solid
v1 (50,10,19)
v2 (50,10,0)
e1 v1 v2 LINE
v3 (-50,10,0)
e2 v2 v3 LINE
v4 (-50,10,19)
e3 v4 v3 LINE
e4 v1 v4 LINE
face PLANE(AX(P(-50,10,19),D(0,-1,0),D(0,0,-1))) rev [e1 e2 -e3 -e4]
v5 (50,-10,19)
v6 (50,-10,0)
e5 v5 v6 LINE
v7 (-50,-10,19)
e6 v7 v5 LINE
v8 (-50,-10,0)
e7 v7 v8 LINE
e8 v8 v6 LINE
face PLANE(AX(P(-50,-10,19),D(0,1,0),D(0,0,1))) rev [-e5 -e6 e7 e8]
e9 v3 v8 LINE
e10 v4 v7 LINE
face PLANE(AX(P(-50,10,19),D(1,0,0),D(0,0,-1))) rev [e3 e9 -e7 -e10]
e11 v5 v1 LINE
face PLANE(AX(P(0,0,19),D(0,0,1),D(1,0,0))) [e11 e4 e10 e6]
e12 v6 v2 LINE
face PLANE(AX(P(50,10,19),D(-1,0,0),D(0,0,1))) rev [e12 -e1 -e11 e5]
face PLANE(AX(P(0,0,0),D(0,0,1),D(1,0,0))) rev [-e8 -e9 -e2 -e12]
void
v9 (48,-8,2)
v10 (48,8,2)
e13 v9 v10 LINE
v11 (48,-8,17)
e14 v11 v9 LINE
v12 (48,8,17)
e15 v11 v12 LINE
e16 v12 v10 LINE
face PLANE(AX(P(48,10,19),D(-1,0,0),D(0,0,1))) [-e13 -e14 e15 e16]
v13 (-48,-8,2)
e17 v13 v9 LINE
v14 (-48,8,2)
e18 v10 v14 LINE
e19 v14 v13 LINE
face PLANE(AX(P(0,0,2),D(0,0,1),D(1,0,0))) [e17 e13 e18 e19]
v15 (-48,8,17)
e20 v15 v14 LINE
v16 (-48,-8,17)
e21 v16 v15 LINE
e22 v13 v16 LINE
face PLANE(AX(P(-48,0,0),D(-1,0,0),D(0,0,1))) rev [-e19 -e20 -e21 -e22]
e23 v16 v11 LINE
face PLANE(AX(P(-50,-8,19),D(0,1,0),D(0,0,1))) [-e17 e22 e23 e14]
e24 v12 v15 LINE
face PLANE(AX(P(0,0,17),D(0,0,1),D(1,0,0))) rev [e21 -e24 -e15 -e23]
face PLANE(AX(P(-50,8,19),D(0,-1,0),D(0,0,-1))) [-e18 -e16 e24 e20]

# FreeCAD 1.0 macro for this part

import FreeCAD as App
import Part
import Sketcher


def faces_at(feature, points):
    """Names of the faces that lie closest to the given points."""
    faces = feature.Shape.Faces
    near = lambda p: min(range(len(faces)), key=lambda i: faces[i].distToShape(Part.Vertex(*p))[0])
    return sorted({f"Face{near(p) + 1}" for p in points})


def add_polygon(sketch, points):
    """Adds a closed chain of lines whose ends are joined by coincident constraints."""
    first, n = sketch.GeometryCount, len(points)
    for a, b in zip(points, points[1:] + points[:1]):
        sketch.addGeometry(Part.LineSegment(App.Vector(*a, 0), App.Vector(*b, 0)), False)
    for i in range(n):
        sketch.addConstraint(Sketcher.Constraint("Coincident", first + i, 2, first + (i + 1) % n, 1))

doc = App.newDocument("Part")
params = doc.addObject("Spreadsheet::Sheet", "Params")
for row, (alias, value) in enumerate([
    ("sketch1_width", "100 mm"),
    ("sketch1_height", "20 mm"),
    ("pad1_length", "19 mm"),
    ("sketch2_width", "100 mm"),
    ("sketch2_height", "20 mm"),
    ("pad2_length", "19 mm"),
    ("thickness_wall", "2 mm"),
    ("sketch3_width", "16 mm"),
    ("sketch3_height", "15 mm"),
    ("pad3_length", "2 mm"),
], start=1):
    params.set(f"A{row}", alias)
    params.set(f"B{row}", "=" + value)
    params.setAlias(f"B{row}", alias)

body = doc.addObject("PartDesign::Body", "Body")

# Sketch on XY plane
sketch1 = doc.addObject("Sketcher::SketchObject", "Sketch")
body.addObject(sketch1)
sketch1.AttachmentSupport = (doc.XY_Plane, [""])
sketch1.MapMode = "FlatFace"
add_polygon(sketch1, [(-50, 10), (-50, -10), (50, -10), (50, 10)])  # lines 0-3
sketch1.addConstraint(Sketcher.Constraint("Vertical", 0))
sketch1.addConstraint(Sketcher.Constraint("Horizontal", 1))
sketch1.addConstraint(Sketcher.Constraint("Vertical", 2))
sketch1.addConstraint(Sketcher.Constraint("Horizontal", 3))
sketch1.addConstraint(Sketcher.Constraint("Symmetric", 0, 2, 2, 2, -1, 1))
sketch1.addConstraint(Sketcher.Constraint("DistanceX", 1, 1, 1, 2, 100.0))
sketch1.addConstraint(Sketcher.Constraint("DistanceY", 0, 2, 0, 1, 20.0))
sketch1.setExpression("Constraints[9]", "Params.sketch1_width")
sketch1.setExpression("Constraints[10]", "Params.sketch1_height")
pad1 = doc.addObject("PartDesign::Pad", "Pad")
body.addObject(pad1)
pad1.Profile = sketch1
pad1.setExpression("Length", "Params.pad1_length")

# Sketch on XY plane
sketch2 = doc.addObject("Sketcher::SketchObject", "Sketch001")
body.addObject(sketch2)
sketch2.AttachmentSupport = (doc.XY_Plane, [""])
sketch2.MapMode = "FlatFace"
add_polygon(sketch2, [(-50, 10), (-50, -10), (50, -10), (50, 10)])  # lines 0-3
sketch2.addConstraint(Sketcher.Constraint("Vertical", 0))
sketch2.addConstraint(Sketcher.Constraint("Horizontal", 1))
sketch2.addConstraint(Sketcher.Constraint("Vertical", 2))
sketch2.addConstraint(Sketcher.Constraint("Horizontal", 3))
sketch2.addConstraint(Sketcher.Constraint("Symmetric", 0, 2, 2, 2, -1, 1))
sketch2.addConstraint(Sketcher.Constraint("DistanceX", 1, 1, 1, 2, 100.0))
sketch2.addConstraint(Sketcher.Constraint("DistanceY", 0, 2, 0, 1, 20.0))
sketch2.setExpression("Constraints[9]", "Params.sketch2_width")
sketch2.setExpression("Constraints[10]", "Params.sketch2_height")
pad2 = doc.addObject("PartDesign::Pad", "Pad001")
body.addObject(pad2)
pad2.Profile = sketch2
pad2.setExpression("Length", "Params.pad2_length")
doc.recompute()

thickness = doc.addObject("PartDesign::Thickness", "Thickness")
body.addObject(thickness)
thickness.Base = (pad2, faces_at(pad2, [(-50, 0, 9.5)]))
thickness.setExpression("Value", "Params.thickness_wall")
thickness.Reversed = True
thickness.Join = "Intersection"

# Sketch on YZ plane
sketch3 = doc.addObject("Sketcher::SketchObject", "Sketch002")
body.addObject(sketch3)
sketch3.AttachmentSupport = (doc.YZ_Plane, [""])
sketch3.MapMode = "FlatFace"
sketch3.AttachmentOffset = App.Placement(App.Vector(0, 0, -50), App.Rotation())
add_polygon(sketch3, [(8, 2), (-8, 2), (-8, 17), (8, 17)])  # lines 0-3
sketch3.addConstraint(Sketcher.Constraint("Horizontal", 0))
sketch3.addConstraint(Sketcher.Constraint("Vertical", 1))
sketch3.addConstraint(Sketcher.Constraint("Horizontal", 2))
sketch3.addConstraint(Sketcher.Constraint("Vertical", 3))
sketch3.addConstraint(Sketcher.Constraint("DistanceX", 0, 2, 0, 1, 16.0))
sketch3.addConstraint(Sketcher.Constraint("DistanceY", 1, 1, 1, 2, 15.0))
sketch3.addConstraint(Sketcher.Constraint("DistanceX", 0, 2, -1, 1, 8.0))
sketch3.addConstraint(Sketcher.Constraint("DistanceY", -1, 1, 0, 2, 2.0))
sketch3.setExpression("Constraints[8]", "Params.sketch3_width")
sketch3.setExpression("Constraints[9]", "Params.sketch3_height")
pad3 = doc.addObject("PartDesign::Pad", "Pad002")
body.addObject(pad3)
pad3.Profile = sketch3
pad3.setExpression("Length", "Params.pad3_length")

doc.recompute()
